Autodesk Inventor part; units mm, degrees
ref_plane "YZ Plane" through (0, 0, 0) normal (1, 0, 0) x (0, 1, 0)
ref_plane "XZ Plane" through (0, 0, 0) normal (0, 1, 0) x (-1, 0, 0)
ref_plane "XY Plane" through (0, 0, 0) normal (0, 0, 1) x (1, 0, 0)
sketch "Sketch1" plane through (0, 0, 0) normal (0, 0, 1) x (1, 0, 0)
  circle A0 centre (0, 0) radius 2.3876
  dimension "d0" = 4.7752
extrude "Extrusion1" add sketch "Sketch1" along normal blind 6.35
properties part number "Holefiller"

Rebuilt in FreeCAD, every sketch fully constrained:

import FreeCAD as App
import Part
import Sketcher
from FreeCAD import Vector
Q = App.Units.Quantity

doc = App.newDocument("Part")
body = doc.addObject("PartDesign::Body", "Body")

# Sketch on XY plane
sketch1 = doc.addObject("Sketcher::SketchObject", "Sketch")
body.addObject(sketch1)
sketch1.AttachmentSupport = (doc.XY_Plane, [""])
sketch1.MapMode = "FlatFace"
sketch1.addGeometry(Part.Circle(Vector(0, 0, 0), Vector(0, 0, 1), 2.4), False)
sketch1.addConstraint(Sketcher.Constraint("Coincident", 0, 3, -1, 1))
sketch1.addConstraint(Sketcher.Constraint("Diameter", 0, Q("0.188 in")))
pad1 = doc.addObject("PartDesign::Pad", "Pad")
body.addObject(pad1)
pad1.Profile = sketch1
pad1.Length = Q("0.25 in")

doc.recompute()
